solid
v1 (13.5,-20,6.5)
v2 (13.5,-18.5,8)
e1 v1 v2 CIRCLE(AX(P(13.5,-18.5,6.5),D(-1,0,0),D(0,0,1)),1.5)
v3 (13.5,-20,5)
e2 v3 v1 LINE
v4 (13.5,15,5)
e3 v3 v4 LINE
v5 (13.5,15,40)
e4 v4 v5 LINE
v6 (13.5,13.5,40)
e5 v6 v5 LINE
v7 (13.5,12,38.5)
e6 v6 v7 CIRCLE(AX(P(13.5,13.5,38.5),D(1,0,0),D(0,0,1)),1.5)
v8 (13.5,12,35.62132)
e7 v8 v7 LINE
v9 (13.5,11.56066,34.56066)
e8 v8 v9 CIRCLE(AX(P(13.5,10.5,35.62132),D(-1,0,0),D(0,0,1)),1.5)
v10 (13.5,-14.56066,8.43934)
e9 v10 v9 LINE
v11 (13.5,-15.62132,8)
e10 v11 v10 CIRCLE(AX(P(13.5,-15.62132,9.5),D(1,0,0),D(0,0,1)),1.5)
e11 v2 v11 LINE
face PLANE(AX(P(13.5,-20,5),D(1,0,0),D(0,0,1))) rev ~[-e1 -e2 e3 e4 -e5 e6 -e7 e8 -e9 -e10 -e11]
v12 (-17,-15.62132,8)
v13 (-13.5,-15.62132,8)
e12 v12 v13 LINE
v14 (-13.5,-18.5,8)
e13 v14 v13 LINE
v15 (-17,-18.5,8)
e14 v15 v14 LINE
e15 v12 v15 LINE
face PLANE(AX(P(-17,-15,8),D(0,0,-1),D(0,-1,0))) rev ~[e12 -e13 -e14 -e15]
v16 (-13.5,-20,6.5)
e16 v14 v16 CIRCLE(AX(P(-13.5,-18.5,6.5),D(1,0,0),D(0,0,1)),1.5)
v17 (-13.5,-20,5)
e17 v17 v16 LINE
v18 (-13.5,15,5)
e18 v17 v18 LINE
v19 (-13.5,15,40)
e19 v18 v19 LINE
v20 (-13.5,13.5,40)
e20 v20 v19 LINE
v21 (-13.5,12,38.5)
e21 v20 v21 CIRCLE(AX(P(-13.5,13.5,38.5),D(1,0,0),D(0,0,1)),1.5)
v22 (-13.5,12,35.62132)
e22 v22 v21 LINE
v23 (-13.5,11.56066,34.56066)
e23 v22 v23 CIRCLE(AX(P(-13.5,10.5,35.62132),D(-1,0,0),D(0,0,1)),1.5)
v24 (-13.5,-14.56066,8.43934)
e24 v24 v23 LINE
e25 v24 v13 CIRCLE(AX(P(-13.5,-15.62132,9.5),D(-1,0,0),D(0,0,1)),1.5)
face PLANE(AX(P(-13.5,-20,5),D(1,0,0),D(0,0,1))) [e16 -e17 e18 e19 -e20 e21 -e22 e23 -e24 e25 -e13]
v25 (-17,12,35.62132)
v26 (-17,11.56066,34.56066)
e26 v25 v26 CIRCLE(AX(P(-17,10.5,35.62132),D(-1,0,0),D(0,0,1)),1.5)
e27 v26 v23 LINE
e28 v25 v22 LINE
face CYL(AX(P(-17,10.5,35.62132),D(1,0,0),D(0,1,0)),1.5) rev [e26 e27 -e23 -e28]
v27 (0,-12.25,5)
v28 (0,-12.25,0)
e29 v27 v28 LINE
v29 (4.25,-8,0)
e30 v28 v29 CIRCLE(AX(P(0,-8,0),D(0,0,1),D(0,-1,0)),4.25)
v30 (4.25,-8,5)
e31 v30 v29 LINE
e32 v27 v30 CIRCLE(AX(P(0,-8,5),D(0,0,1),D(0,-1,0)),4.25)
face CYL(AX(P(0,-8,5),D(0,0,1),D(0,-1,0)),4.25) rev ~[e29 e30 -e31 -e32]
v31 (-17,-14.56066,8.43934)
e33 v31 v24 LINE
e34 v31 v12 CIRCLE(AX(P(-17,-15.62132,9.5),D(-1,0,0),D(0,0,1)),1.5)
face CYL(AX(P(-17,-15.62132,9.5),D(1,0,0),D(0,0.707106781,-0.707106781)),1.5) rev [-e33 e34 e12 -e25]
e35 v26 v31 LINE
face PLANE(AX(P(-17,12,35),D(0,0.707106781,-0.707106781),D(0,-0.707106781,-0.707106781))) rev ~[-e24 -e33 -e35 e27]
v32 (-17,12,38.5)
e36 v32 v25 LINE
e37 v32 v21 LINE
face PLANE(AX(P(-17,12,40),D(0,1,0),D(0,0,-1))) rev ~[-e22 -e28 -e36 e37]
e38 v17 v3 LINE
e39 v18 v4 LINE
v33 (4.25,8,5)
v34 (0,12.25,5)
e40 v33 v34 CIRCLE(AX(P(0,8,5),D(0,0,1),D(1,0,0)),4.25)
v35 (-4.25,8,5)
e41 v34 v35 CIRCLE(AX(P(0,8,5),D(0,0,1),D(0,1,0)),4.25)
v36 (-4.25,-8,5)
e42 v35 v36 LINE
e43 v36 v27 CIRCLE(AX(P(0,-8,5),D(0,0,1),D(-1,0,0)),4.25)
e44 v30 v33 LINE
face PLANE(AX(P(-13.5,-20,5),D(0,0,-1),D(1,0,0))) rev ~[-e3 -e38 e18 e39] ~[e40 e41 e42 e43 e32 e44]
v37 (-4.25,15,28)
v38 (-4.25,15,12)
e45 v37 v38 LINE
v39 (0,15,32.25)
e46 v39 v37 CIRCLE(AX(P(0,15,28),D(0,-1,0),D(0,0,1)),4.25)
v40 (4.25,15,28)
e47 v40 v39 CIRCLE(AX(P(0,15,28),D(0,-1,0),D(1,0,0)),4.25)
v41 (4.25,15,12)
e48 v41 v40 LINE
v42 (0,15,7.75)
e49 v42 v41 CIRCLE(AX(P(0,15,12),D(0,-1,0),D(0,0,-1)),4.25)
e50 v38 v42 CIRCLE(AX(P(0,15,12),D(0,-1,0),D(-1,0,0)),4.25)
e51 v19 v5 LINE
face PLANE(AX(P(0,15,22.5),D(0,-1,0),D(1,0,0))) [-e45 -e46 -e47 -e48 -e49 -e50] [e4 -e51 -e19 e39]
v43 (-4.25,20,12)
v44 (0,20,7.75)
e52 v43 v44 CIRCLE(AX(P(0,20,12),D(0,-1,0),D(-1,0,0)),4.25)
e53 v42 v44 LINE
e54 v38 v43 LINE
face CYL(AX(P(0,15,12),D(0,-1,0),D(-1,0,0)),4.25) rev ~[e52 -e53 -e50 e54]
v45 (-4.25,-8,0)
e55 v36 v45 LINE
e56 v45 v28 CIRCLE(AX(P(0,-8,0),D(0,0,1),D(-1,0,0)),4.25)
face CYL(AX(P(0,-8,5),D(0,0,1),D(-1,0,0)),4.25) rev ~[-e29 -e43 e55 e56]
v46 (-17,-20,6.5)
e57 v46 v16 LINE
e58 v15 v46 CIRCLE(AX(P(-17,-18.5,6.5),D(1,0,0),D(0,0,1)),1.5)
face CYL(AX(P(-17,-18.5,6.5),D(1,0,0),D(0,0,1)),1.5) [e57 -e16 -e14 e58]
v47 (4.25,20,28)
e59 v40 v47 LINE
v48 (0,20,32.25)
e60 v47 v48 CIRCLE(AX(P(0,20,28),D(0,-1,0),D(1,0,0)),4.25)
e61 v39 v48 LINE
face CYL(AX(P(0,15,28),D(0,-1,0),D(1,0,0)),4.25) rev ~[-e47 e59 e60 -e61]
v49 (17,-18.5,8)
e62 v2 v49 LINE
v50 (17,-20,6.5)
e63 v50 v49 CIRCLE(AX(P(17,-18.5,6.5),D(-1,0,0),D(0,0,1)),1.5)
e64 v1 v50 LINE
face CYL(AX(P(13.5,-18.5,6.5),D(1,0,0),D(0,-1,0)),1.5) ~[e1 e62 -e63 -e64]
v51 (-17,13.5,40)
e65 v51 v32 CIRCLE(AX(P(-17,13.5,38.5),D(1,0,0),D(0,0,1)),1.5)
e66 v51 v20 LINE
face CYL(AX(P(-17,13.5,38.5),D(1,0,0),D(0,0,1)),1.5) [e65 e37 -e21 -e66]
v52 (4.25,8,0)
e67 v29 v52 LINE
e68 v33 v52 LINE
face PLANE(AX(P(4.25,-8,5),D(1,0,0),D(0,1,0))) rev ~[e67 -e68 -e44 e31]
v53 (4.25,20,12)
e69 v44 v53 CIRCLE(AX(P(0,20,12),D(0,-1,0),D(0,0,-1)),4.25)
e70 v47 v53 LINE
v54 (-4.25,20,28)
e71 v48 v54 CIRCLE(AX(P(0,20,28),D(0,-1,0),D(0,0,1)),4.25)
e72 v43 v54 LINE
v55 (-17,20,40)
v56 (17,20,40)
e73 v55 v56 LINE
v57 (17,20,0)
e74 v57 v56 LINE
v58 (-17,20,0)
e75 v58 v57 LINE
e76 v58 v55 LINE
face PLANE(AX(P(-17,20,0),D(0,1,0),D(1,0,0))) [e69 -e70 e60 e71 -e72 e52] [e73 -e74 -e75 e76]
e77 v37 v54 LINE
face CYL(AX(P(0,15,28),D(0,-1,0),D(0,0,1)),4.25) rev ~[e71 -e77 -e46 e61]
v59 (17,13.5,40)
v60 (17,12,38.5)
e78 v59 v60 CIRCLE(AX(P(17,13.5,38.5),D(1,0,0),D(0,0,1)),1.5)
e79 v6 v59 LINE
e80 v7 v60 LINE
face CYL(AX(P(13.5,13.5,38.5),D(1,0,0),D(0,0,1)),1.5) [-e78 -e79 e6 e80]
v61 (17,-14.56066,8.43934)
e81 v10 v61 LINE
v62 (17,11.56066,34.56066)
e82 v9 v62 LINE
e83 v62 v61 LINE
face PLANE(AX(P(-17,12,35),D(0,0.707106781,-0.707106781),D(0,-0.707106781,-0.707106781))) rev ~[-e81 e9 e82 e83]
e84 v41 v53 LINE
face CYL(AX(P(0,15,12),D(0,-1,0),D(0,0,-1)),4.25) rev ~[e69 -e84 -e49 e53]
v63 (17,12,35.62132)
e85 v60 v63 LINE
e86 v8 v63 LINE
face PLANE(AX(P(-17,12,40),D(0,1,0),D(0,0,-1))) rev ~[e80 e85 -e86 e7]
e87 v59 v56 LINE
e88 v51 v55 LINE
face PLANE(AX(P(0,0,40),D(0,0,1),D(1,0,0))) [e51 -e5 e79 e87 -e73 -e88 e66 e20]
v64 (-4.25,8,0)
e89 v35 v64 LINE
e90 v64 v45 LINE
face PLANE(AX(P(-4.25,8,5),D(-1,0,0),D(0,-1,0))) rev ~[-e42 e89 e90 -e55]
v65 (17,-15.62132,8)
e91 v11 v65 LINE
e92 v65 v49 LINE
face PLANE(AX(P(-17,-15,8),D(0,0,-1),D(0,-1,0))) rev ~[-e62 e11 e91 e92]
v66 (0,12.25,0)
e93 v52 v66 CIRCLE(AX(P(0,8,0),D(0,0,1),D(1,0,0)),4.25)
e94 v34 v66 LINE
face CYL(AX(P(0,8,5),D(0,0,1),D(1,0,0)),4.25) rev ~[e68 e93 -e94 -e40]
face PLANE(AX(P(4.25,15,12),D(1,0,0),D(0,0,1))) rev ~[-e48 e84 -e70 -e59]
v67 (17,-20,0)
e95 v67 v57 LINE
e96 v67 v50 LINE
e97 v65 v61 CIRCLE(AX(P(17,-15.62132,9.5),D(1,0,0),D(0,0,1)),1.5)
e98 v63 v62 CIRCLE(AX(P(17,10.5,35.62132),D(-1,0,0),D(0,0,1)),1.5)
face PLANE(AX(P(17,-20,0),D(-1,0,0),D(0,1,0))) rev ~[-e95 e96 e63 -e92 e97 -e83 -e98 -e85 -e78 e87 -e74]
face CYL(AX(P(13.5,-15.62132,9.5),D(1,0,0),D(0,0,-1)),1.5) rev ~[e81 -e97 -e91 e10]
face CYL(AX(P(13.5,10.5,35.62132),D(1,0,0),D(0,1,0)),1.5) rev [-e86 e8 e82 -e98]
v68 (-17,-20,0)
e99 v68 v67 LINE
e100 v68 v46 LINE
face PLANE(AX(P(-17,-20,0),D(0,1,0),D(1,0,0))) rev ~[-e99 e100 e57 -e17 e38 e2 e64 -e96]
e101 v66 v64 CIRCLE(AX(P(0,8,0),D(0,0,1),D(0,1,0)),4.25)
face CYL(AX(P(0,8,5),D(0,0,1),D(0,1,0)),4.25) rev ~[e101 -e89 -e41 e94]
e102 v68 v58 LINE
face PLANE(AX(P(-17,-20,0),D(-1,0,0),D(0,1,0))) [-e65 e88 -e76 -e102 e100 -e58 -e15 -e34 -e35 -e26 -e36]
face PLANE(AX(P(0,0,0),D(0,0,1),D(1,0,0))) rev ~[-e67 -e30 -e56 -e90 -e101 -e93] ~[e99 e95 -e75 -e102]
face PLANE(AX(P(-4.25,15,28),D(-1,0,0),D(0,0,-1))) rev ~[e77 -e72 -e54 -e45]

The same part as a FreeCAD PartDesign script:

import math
import FreeCAD as App
import Part
import Sketcher

V = App.Vector
Q = App.Units.Quantity


def edges_at(feature, points):
    """Names of the edges that pass closest to the given points."""
    edges = feature.Shape.Edges
    near = lambda p: min(range(len(edges)), key=lambda i: edges[i].distToShape(Part.Vertex(*p))[0])
    return sorted({f"Edge{near(p) + 1}" for p in points})


def add_polygon(sketch, points):
    """Adds a closed chain of lines whose ends are joined by coincident constraints."""
    first, n = sketch.GeometryCount, len(points)
    for a, b in zip(points, points[1:] + points[:1]):
        sketch.addGeometry(Part.LineSegment(App.Vector(*a, 0), App.Vector(*b, 0)), False)
    for i in range(n):
        sketch.addConstraint(Sketcher.Constraint("Coincident", first + i, 2, first + (i + 1) % n, 1))

doc = App.newDocument("Part")
body = doc.addObject("PartDesign::Body", "Body")

# Sketch on XY plane
sketch1 = doc.addObject("Sketcher::SketchObject", "Sketch")
body.addObject(sketch1)
sketch1.AttachmentSupport = (doc.XY_Plane, [""])
sketch1.MapMode = "FlatFace"
add_polygon(sketch1, [(-17, 20), (-17, -20), (17, -20), (17, 20)])  # lines 0-3
sketch1.addConstraint([
    Sketcher.Constraint("Vertical", 0),
    Sketcher.Constraint("Horizontal", 1),
    Sketcher.Constraint("Vertical", 2),
    Sketcher.Constraint("Horizontal", 3),
    Sketcher.Constraint("Symmetric", 0, 2, 2, 2, -1, 1),
    Sketcher.Constraint("DistanceX", 1, 1, 1, 2, Q("34 mm")),
    Sketcher.Constraint("DistanceY", 0, 2, 0, 1, Q("40 mm")),
])
pad1 = doc.addObject("PartDesign::Pad", "Pad")
body.addObject(pad1)
pad1.Profile = sketch1
pad1.Length = 40

# Sketch on XZ plane
sketch2 = doc.addObject("Sketcher::SketchObject", "Sketch001")
body.addObject(sketch2)
sketch2.AttachmentSupport = (doc.XZ_Plane, [""])
sketch2.MapMode = "FlatFace"
sketch2.AttachmentOffset = App.Placement(V(0, 0, 20), App.Rotation())
add_polygon(sketch2, [(-13.5, 40), (-13.5, 5), (13.5, 5), (13.5, 40)])  # lines 0-3
sketch2.addConstraint([
    Sketcher.Constraint("Vertical", 0),
    Sketcher.Constraint("Horizontal", 1),
    Sketcher.Constraint("Vertical", 2),
    Sketcher.Constraint("Horizontal", 3),
    Sketcher.Constraint("DistanceX", 1, 1, 1, 2, Q("27 mm")),
    Sketcher.Constraint("DistanceY", 0, 2, 0, 1, Q("35 mm")),
    Sketcher.Constraint("DistanceY", -1, 1, 0, 2, Q("5 mm")),
    Sketcher.Constraint("DistanceX", 0, 2, -1, 1, Q("13.5 mm")),
])
pocket1 = doc.addObject("PartDesign::Pocket", "Pocket")
body.addObject(pocket1)
pocket1.Profile = sketch2
pocket1.Length = 35

# Sketch on YZ plane
sketch3 = doc.addObject("Sketcher::SketchObject", "Sketch002")
body.addObject(sketch3)
sketch3.AttachmentSupport = (doc.YZ_Plane, [""])
sketch3.MapMode = "FlatFace"
sketch3.AttachmentOffset = App.Placement(V(0, 0, -17), App.Rotation())
add_polygon(sketch3, [(-20, 40), (12, 40), (12, 35), (-15, 8), (-20, 8)])  # lines 0-4
sketch3.addConstraint([
    Sketcher.Constraint("Horizontal", 0),
    Sketcher.Constraint("Vertical", 1),
    Sketcher.Constraint("Horizontal", 3),
    Sketcher.Constraint("Vertical", 4),
    Sketcher.Constraint("Equal", 3, 1),
    Sketcher.Constraint("Equal", 0, 4),
    Sketcher.Constraint("DistanceX", 0, 1, 0, 2, Q("32 mm")),
    Sketcher.Constraint("DistanceX", 3, 2, 3, 1, Q("5 mm")),
    Sketcher.Constraint("DistanceX", -1, 1, 0, 2, Q("12 mm")),
    Sketcher.Constraint("DistanceY", -1, 1, 0, 2, Q("40 mm")),
])
pocket2 = doc.addObject("PartDesign::Pocket", "Pocket001")
body.addObject(pocket2)
pocket2.Profile = sketch3
pocket2.Type = "ThroughAll"
pocket2.Reversed = True

# Sketch on XY plane
sketch4 = doc.addObject("Sketcher::SketchObject", "Sketch003")
body.addObject(sketch4)
sketch4.AttachmentSupport = (doc.XY_Plane, [""])
sketch4.MapMode = "FlatFace"
sketch4.AttachmentOffset = App.Placement(V(0, 0, 5), App.Rotation())
sketch4.addGeometry([
    Part.LineSegment(V(-4.25, 8, 0), V(-4.25, -8, 0)),  # 0
    Part.ArcOfCircle(Part.Circle(V(0, -8, 0), V(0, 0, 1), 4.25), math.radians(180), math.radians(270)),  # 1
    Part.ArcOfCircle(Part.Circle(V(0, -8, 0), V(0, 0, 1), 4.25), math.radians(-90), math.radians(0)),  # 2
    Part.LineSegment(V(4.25, -8, 0), V(4.25, 8, 0)),  # 3
    Part.ArcOfCircle(Part.Circle(V(0, 8, 0), V(0, 0, 1), 4.25), math.radians(0), math.radians(90)),  # 4
    Part.ArcOfCircle(Part.Circle(V(0, 8, 0), V(0, 0, 1), 4.25), math.radians(90), math.radians(180)),  # 5
], False)
sketch4.addConstraint([
    Sketcher.Constraint("Tangent", 0, 2, 1, 1),
    Sketcher.Constraint("Tangent", 1, 2, 2, 1),
    Sketcher.Constraint("Tangent", 2, 2, 3, 1),
    Sketcher.Constraint("Tangent", 3, 2, 4, 1),
    Sketcher.Constraint("Tangent", 4, 2, 5, 1),
    Sketcher.Constraint("Tangent", 5, 2, 0, 1),
    Sketcher.Constraint("Vertical", 0),
    Sketcher.Constraint("Vertical", 3),
    Sketcher.Constraint("Equal", 1, 2),
    Sketcher.Constraint("Equal", 2, 4),
    Sketcher.Constraint("Symmetric", 1, 3, 4, 3, -1, 1),
    Sketcher.Constraint("PointOnObject", 1, 2, -2),
    Sketcher.Constraint("PointOnObject", 4, 2, -2),
    Sketcher.Constraint("DistanceY", 0, 2, 0, 1, Q("16 mm")),
    Sketcher.Constraint("Radius", 1, Q("4.25 mm")),
])
pocket3 = doc.addObject("PartDesign::Pocket", "Pocket002")
body.addObject(pocket3)
pocket3.Profile = sketch4
pocket3.Type = "ThroughAll"

# Sketch on XZ plane
sketch5 = doc.addObject("Sketcher::SketchObject", "Sketch004")
body.addObject(sketch5)
sketch5.AttachmentSupport = (doc.XZ_Plane, [""])
sketch5.MapMode = "FlatFace"
sketch5.AttachmentOffset = App.Placement(V(0, 0, -15), App.Rotation())
sketch5.addGeometry([
    Part.LineSegment(V(-4.25, 28, 0), V(-4.25, 12, 0)),  # 0
    Part.ArcOfCircle(Part.Circle(V(0, 12, 0), V(0, 0, 1), 4.25), math.radians(180), math.radians(270)),  # 1
    Part.ArcOfCircle(Part.Circle(V(0, 12, 0), V(0, 0, 1), 4.25), math.radians(-90), math.radians(0)),  # 2
    Part.LineSegment(V(4.25, 12, 0), V(4.25, 28, 0)),  # 3
    Part.ArcOfCircle(Part.Circle(V(0, 28, 0), V(0, 0, 1), 4.25), math.radians(0), math.radians(90)),  # 4
    Part.ArcOfCircle(Part.Circle(V(0, 28, 0), V(0, 0, 1), 4.25), math.radians(90), math.radians(180)),  # 5
], False)
sketch5.addConstraint([
    Sketcher.Constraint("Tangent", 0, 2, 1, 1),
    Sketcher.Constraint("Tangent", 1, 2, 2, 1),
    Sketcher.Constraint("Tangent", 2, 2, 3, 1),
    Sketcher.Constraint("Tangent", 3, 2, 4, 1),
    Sketcher.Constraint("Tangent", 4, 2, 5, 1),
    Sketcher.Constraint("Tangent", 5, 2, 0, 1),
    Sketcher.Constraint("Vertical", 0),
    Sketcher.Constraint("Vertical", 3),
    Sketcher.Constraint("Equal", 1, 2),
    Sketcher.Constraint("Equal", 2, 4),
    Sketcher.Constraint("PointOnObject", 1, 3, -2),
    Sketcher.Constraint("PointOnObject", 1, 2, -2),
    Sketcher.Constraint("PointOnObject", 4, 2, -2),
    Sketcher.Constraint("DistanceY", 0, 2, 0, 1, Q("16 mm")),
    Sketcher.Constraint("Radius", 1, Q("4.25 mm")),
    Sketcher.Constraint("DistanceY", -1, 1, 1, 3, Q("12 mm")),
])
pocket4 = doc.addObject("PartDesign::Pocket", "Pocket003")
body.addObject(pocket4)
pocket4.Profile = sketch5
pocket4.Type = "ThroughAll"
doc.recompute()

fillet = doc.addObject("PartDesign::Fillet", "Fillet")
body.addObject(fillet)
fillet.Base = (pocket4, edges_at(pocket4, [
    (-15.25, -15, 8),
    (15.25, -15, 8),
    (15.25, -20, 8),
    (-15.25, -20, 8),
    (15.25, 12, 35),
    (-15.25, 12, 35),
    (-15.25, 12, 40),
    (15.25, 12, 40),
]))
fillet.Radius = 1.5

doc.recompute()
